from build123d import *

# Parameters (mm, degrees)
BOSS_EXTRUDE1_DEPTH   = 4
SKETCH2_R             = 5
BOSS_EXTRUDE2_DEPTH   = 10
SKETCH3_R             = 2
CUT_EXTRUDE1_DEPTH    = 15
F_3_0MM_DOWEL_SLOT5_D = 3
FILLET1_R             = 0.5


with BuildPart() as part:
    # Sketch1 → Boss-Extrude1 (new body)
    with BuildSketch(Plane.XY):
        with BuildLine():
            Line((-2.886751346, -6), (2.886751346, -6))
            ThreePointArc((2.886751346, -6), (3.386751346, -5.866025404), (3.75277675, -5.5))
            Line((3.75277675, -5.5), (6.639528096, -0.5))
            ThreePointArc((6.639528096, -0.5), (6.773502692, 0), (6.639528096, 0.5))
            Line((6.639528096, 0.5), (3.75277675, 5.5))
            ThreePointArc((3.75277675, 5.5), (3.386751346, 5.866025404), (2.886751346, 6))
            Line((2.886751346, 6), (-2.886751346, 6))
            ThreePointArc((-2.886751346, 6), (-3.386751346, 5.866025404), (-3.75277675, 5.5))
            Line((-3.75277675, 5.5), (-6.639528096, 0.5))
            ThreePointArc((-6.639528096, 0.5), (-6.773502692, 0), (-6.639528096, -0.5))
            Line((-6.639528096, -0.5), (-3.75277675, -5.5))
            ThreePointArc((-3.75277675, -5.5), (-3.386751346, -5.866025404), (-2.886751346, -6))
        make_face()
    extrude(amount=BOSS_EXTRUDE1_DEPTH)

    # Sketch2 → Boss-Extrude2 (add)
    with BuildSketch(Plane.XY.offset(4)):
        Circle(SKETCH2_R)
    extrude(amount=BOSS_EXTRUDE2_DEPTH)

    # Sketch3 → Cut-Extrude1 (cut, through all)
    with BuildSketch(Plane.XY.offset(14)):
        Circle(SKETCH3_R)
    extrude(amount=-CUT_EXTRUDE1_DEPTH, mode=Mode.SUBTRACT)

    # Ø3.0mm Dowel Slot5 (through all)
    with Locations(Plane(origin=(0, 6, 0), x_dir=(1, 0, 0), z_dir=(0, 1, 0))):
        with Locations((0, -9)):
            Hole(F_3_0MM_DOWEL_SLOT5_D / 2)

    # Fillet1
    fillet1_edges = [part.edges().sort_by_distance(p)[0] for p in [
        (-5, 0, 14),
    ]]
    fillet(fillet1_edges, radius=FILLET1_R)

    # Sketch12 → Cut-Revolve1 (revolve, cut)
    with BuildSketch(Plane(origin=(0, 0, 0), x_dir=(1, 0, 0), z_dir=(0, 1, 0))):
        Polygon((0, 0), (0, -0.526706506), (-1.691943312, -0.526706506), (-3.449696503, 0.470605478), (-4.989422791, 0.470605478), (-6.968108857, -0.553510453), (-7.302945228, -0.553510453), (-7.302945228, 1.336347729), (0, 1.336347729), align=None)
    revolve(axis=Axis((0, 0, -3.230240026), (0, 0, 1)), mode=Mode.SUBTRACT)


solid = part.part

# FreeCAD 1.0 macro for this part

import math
import FreeCAD as App
import Part
import Sketcher
from FreeCAD import Vector
Q = App.Units.Quantity


def edges_at(feature, points):
    """Names of the edges that pass closest to the given points."""
    edges = feature.Shape.Edges
    near = lambda p: min(range(len(edges)), key=lambda i: edges[i].distToShape(Part.Vertex(*p))[0])
    return sorted({f"Edge{near(p) + 1}" for p in points})

doc = App.newDocument("Part")
body = doc.addObject("PartDesign::Body", "Body")

# Sketch on XY plane
sketch1 = body.newObject("Sketcher::SketchObject", "Sketch")
sketch1.AttachmentSupport = (doc.getObject("XY_Plane"), [""])
sketch1.MapMode = "FlatFace"
sketch1.addGeometry([
    Part.LineSegment(Vector(-2.9, -6, 0), Vector(2.9, -6, 0)),  # 0
    Part.ArcOfCircle(Part.Circle(Vector(2.9, -5, 0), Vector(0, 0, 1), 1), math.radians(-90), math.radians(-30)),  # 1
    Part.LineSegment(Vector(3.8, -5.5, 0), Vector(6.6, -0.5, 0)),  # 2
    Part.ArcOfCircle(Part.Circle(Vector(5.8, 0, 0), Vector(0, 0, 1), 1), math.radians(-30), math.radians(30)),  # 3
    Part.LineSegment(Vector(6.6, 0.5, 0), Vector(3.8, 5.5, 0)),  # 4
    Part.ArcOfCircle(Part.Circle(Vector(2.9, 5, 0), Vector(0, 0, 1), 1), math.radians(30), math.radians(90)),  # 5
    Part.LineSegment(Vector(2.9, 6, 0), Vector(-2.9, 6, 0)),  # 6
    Part.ArcOfCircle(Part.Circle(Vector(-2.9, 5, 0), Vector(0, 0, 1), 1), math.radians(90), math.radians(150)),  # 7
    Part.LineSegment(Vector(-3.8, 5.5, 0), Vector(-6.6, 0.5, 0)),  # 8
    Part.ArcOfCircle(Part.Circle(Vector(-5.8, 0, 0), Vector(0, 0, 1), 1), math.radians(150), math.radians(210)),  # 9
    Part.LineSegment(Vector(-6.6, -0.5, 0), Vector(-3.8, -5.5, 0)),  # 10
    Part.ArcOfCircle(Part.Circle(Vector(-2.9, -5, 0), Vector(0, 0, 1), 1), math.radians(-150), math.radians(-90)),  # 11
], False)
sketch1.addConstraint([
    Sketcher.Constraint("Tangent", 0, 2, 1, 1),
    Sketcher.Constraint("Tangent", 1, 2, 2, 1),
    Sketcher.Constraint("Tangent", 2, 2, 3, 1),
    Sketcher.Constraint("Tangent", 3, 2, 4, 1),
    Sketcher.Constraint("Tangent", 4, 2, 5, 1),
    Sketcher.Constraint("Tangent", 5, 2, 6, 1),
    Sketcher.Constraint("Tangent", 6, 2, 7, 1),
    Sketcher.Constraint("Tangent", 7, 2, 8, 1),
    Sketcher.Constraint("Tangent", 8, 2, 9, 1),
    Sketcher.Constraint("Tangent", 9, 2, 10, 1),
    Sketcher.Constraint("Tangent", 10, 2, 11, 1),
    Sketcher.Constraint("Tangent", 11, 2, 0, 1),
    Sketcher.Constraint("Horizontal", 0),
    Sketcher.Constraint("Horizontal", 6),
    Sketcher.Constraint("Equal", 1, 3),
    Sketcher.Constraint("Equal", 3, 5),
    Sketcher.Constraint("Equal", 5, 7),
    Sketcher.Constraint("Equal", 7, 9),
    Sketcher.Constraint("Equal", 9, 11),
    Sketcher.Constraint("Symmetric", 1, 3, 7, 3, -1, 1),
    Sketcher.Constraint("Symmetric", 3, 3, 9, 3, -1, 1),
    Sketcher.Constraint("Symmetric", 4, 2, 7, 2, -2),
    Sketcher.Constraint("Parallel", 4, 10),
    Sketcher.Constraint("Radius", 1, Q("1 mm")),
    Sketcher.Constraint("Angle", 2, Q("60 deg")),
    Sketcher.Constraint("DistanceY", 1, 3, -1, 1, Q("5 mm")),
    Sketcher.Constraint("DistanceX", 0, 1, 0, 2, Q("5.773503 mm")),
])
pad1 = body.newObject("PartDesign::Pad", "Pad")
pad1.Profile = sketch1
pad1.Length = 4

# Sketch on XY plane
sketch2 = body.newObject("Sketcher::SketchObject", "Sketch001")
sketch2.AttachmentSupport = (doc.getObject("XY_Plane"), [""])
sketch2.MapMode = "FlatFace"
sketch2.AttachmentOffset = App.Placement(Vector(0, 0, 4), App.Rotation())
sketch2.addGeometry(Part.Circle(Vector(0, 0, 0), Vector(0, 0, 1), 5), False)
sketch2.addConstraint([
    Sketcher.Constraint("Coincident", 0, 3, -1, 1),
    Sketcher.Constraint("Diameter", 0, Q("10 mm")),
])
pad2 = body.newObject("PartDesign::Pad", "Pad001")
pad2.Profile = sketch2
pad2.Length = 10

# Sketch on XY plane
sketch3 = body.newObject("Sketcher::SketchObject", "Sketch002")
sketch3.AttachmentSupport = (doc.getObject("XY_Plane"), [""])
sketch3.MapMode = "FlatFace"
sketch3.AttachmentOffset = App.Placement(Vector(0, 0, 14), App.Rotation())
sketch3.addGeometry(Part.Circle(Vector(0, 0, 0), Vector(0, 0, 1), 2), False)
sketch3.addConstraint([
    Sketcher.Constraint("Coincident", 0, 3, -1, 1),
    Sketcher.Constraint("Diameter", 0, Q("4 mm")),
])
pocket1 = body.newObject("PartDesign::Pocket", "Pocket")
pocket1.Profile = sketch3
pocket1.Type = "ThroughAll"

# Sketch on XZ plane
sketch4 = body.newObject("Sketcher::SketchObject", "Sketch003")
sketch4.AttachmentSupport = (doc.getObject("XZ_Plane"), [""])
sketch4.MapMode = "FlatFace"
sketch4.AttachmentOffset = App.Placement(Vector(0, 0, -6), App.Rotation())
sketch4.addGeometry(Part.Circle(Vector(0, 9, 0), Vector(0, 0, 1), 1.5), False)
sketch4.addConstraint([
    Sketcher.Constraint("PointOnObject", 0, 3, -2),
    Sketcher.Constraint("Diameter", 0, Q("3 mm")),
    Sketcher.Constraint("DistanceY", -1, 1, 0, 3, Q("9 mm")),
])
doc.recompute()
hole = body.newObject("PartDesign::Hole", "Hole")
hole.Profile = sketch4
hole.ThreadType = "None"
hole.Diameter = 3
hole.DepthType = "ThroughAll"
hole.Reversed = True
doc.recompute()

fillet = body.newObject("PartDesign::Fillet", "Fillet")
fillet.Base = (hole, edges_at(hole, [(-5, 0, 14)]))
fillet.Radius = 0.5

# Sketch on XZ plane
sketch5 = body.newObject("Sketcher::SketchObject", "Sketch004")
sketch5.AttachmentSupport = (doc.getObject("XZ_Plane"), [""])
sketch5.MapMode = "FlatFace"
sketch5.addGeometry([
    Part.LineSegment(Vector(0, 0.53, 0), Vector(0, -1.34, 0)),  # 0
    Part.LineSegment(Vector(0, -1.34, 0), Vector(-7.3, -1.34, 0)),  # 1
    Part.LineSegment(Vector(-7.3, -1.34, 0), Vector(-7.3, 0.55, 0)),  # 2
    Part.LineSegment(Vector(-7.3, 0.55, 0), Vector(-6.97, 0.55, 0)),  # 3
    Part.LineSegment(Vector(-6.97, 0.55, 0), Vector(-4.99, -0.47, 0)),  # 4
    Part.LineSegment(Vector(-4.99, -0.47, 0), Vector(-3.45, -0.47, 0)),  # 5
    Part.LineSegment(Vector(-3.45, -0.47, 0), Vector(-1.69, 0.53, 0)),  # 6
    Part.LineSegment(Vector(-1.69, 0.53, 0), Vector(0, 0.53, 0)),  # 7
], False)
sketch5.addConstraint([
    Sketcher.Constraint("Coincident", 0, 2, 1, 1),
    Sketcher.Constraint("Coincident", 1, 2, 2, 1),
    Sketcher.Constraint("Coincident", 2, 2, 3, 1),
    Sketcher.Constraint("Coincident", 3, 2, 4, 1),
    Sketcher.Constraint("Coincident", 4, 2, 5, 1),
    Sketcher.Constraint("Coincident", 5, 2, 6, 1),
    Sketcher.Constraint("Coincident", 6, 2, 7, 1),
    Sketcher.Constraint("Coincident", 7, 2, 0, 1),
    Sketcher.Constraint("Vertical", 0),
    Sketcher.Constraint("Horizontal", 1),
    Sketcher.Constraint("Vertical", 2),
    Sketcher.Constraint("Horizontal", 3),
    Sketcher.Constraint("Horizontal", 5),
    Sketcher.Constraint("Horizontal", 7),
    Sketcher.Constraint("PointOnObject", 0, 2, -2),
    Sketcher.Constraint("DistanceX", 2, 2, 6, 2, Q("5.611002 mm")),
    Sketcher.Constraint("DistanceY", 2, 1, 2, 2, Q("1.889858 mm")),
    Sketcher.Constraint("Distance", 6, Q("2.020972 mm")),
    Sketcher.Constraint("DistanceX", 1, 2, 1, 1, Q("7.302945 mm")),
    Sketcher.Constraint("DistanceX", 3, 1, 3, 2, Q("0.334836 mm")),
    Sketcher.Constraint("DistanceX", 5, 1, 5, 2, Q("1.539726 mm")),
    Sketcher.Constraint("DistanceY", 0, 2, 0, 1, Q("1.863054 mm")),
    Sketcher.Constraint("DistanceY", -1, 1, 2, 2, Q("0.55351 mm")),
    Sketcher.Constraint("DistanceX", 1, 2, 5, 2, Q("3.853249 mm")),
])
groove = body.newObject("PartDesign::Groove", "Groove")
groove.Profile = sketch5
groove.ReferenceAxis = (sketch5, ["V_Axis"])
groove.Angle = 360

doc.recompute()
